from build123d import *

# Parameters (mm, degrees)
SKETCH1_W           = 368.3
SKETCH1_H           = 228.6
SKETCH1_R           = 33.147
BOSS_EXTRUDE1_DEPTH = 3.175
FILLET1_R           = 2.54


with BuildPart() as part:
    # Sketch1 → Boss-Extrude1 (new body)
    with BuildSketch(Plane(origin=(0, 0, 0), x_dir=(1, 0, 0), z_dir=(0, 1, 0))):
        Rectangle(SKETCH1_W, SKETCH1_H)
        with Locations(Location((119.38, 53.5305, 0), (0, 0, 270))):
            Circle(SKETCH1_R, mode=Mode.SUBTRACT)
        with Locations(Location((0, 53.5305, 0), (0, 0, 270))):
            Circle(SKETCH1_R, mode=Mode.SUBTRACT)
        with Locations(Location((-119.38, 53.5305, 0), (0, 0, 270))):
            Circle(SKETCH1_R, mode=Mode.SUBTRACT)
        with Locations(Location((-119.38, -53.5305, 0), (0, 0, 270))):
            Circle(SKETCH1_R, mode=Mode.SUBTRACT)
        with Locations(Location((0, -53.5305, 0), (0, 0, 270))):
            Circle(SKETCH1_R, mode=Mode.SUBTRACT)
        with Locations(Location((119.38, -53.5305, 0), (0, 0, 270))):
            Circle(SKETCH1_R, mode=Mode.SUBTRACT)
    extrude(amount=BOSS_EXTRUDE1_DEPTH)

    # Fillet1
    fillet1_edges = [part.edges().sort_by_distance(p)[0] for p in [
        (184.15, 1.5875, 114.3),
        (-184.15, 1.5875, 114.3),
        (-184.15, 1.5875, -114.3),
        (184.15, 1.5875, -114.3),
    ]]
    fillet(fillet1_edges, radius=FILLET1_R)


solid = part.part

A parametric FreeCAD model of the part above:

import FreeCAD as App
import Part
import Sketcher
Q = App.Units.Quantity


def edges_at(feature, points):
    """Names of the edges that pass closest to the given points."""
    edges = feature.Shape.Edges
    near = lambda p: min(range(len(edges)), key=lambda i: edges[i].distToShape(Part.Vertex(*p))[0])
    return sorted({f"Edge{near(p) + 1}" for p in points})

doc = App.newDocument("Part")
params = doc.addObject("Spreadsheet::Sheet", "Params")
for row, (alias, value) in enumerate([
    ("sketch1_diameter", "2.61 in"),
    ("sketch1_height", "9 in"),
    ("sketch1_width", "14.5 in"),
    ("pad1_length", "0.125 in"),
    ("fillet_radius", "0.1 in"),
], start=1):
    params.set(f"A{row}", alias)
    params.set(f"B{row}", "=" + value)
    params.setAlias(f"B{row}", alias)

body = doc.addObject("PartDesign::Body", "Body")

# Sketch on XZ plane
sketch1 = body.newObject("Sketcher::SketchObject", "Sketch")
sketch1.AttachmentSupport = (doc.getObject("XZ_Plane"), [""])
sketch1.MapMode = "FlatFace"
sketch1.addGeometry(Part.LineSegment(App.Vector(-184, -114, 0), App.Vector(-184, 114, 0)), False)
sketch1.addGeometry(Part.LineSegment(App.Vector(-184, 114, 0), App.Vector(184, 114, 0)), False)
sketch1.addGeometry(Part.LineSegment(App.Vector(184, 114, 0), App.Vector(184, -114, 0)), False)
sketch1.addGeometry(Part.LineSegment(App.Vector(184, -114, 0), App.Vector(-184, -114, 0)), False)
sketch1.addGeometry(Part.Circle(App.Vector(-119, 54, 0), App.Vector(0, 0, 1), 33), False)
sketch1.addGeometry(Part.Circle(App.Vector(0, 54, 0), App.Vector(0, 0, 1), 33), False)
sketch1.addGeometry(Part.Circle(App.Vector(119, 54, 0), App.Vector(0, 0, 1), 33), False)
sketch1.addGeometry(Part.Circle(App.Vector(-119, -54, 0), App.Vector(0, 0, 1), 33), False)
sketch1.addGeometry(Part.Circle(App.Vector(0, -54, 0), App.Vector(0, 0, 1), 33), False)
sketch1.addGeometry(Part.Circle(App.Vector(119, -54, 0), App.Vector(0, 0, 1), 33), False)
sketch1.addConstraint(Sketcher.Constraint("Coincident", 0, 2, 1, 1))
sketch1.addConstraint(Sketcher.Constraint("Coincident", 1, 2, 2, 1))
sketch1.addConstraint(Sketcher.Constraint("Coincident", 2, 2, 3, 1))
sketch1.addConstraint(Sketcher.Constraint("Coincident", 3, 2, 0, 1))
sketch1.addConstraint(Sketcher.Constraint("Vertical", 0))
sketch1.addConstraint(Sketcher.Constraint("Horizontal", 1))
sketch1.addConstraint(Sketcher.Constraint("Vertical", 2))
sketch1.addConstraint(Sketcher.Constraint("Horizontal", 3))
sketch1.addConstraint(Sketcher.Constraint("Equal", 4, 5))
sketch1.addConstraint(Sketcher.Constraint("Equal", 5, 6))
sketch1.addConstraint(Sketcher.Constraint("Equal", 6, 7))
sketch1.addConstraint(Sketcher.Constraint("Equal", 7, 8))
sketch1.addConstraint(Sketcher.Constraint("Equal", 8, 9))
sketch1.addConstraint(Sketcher.Constraint("Symmetric", 6, 3, 7, 3, -1, 1))
sketch1.addConstraint(Sketcher.Constraint("Symmetric", 5, 3, 8, 3, -1, 1))
sketch1.addConstraint(Sketcher.Constraint("Symmetric", 4, 3, 9, 3, -1, 1))
sketch1.addConstraint(Sketcher.Constraint("Symmetric", 0, 2, 2, 2, -1, 1))
sketch1.addConstraint(Sketcher.Constraint("Symmetric", 4, 3, 6, 3, -2))
sketch1.addConstraint(Sketcher.Constraint("PointOnObject", 5, 3, -2))
sketch1.addConstraint(Sketcher.Constraint("Horizontal", 4, 3, 5, 3))
sketch1.addConstraint(Sketcher.Constraint("Diameter", 4, Q("2.61 in")))
sketch1.addConstraint(Sketcher.Constraint("DistanceY", 0, 1, 0, 2, Q("9 in")))
sketch1.addConstraint(Sketcher.Constraint("DistanceX", 1, 1, 1, 2, Q("14.5 in")))
sketch1.addConstraint(Sketcher.Constraint("DistanceX", 4, 3, -1, 1, Q("4.7 in")))
sketch1.addConstraint(Sketcher.Constraint("DistanceY", 7, 3, 4, 3, Q("4.215 in")))
sketch1.setExpression("Constraints[20]", "Params.sketch1_diameter")
sketch1.setExpression("Constraints[21]", "Params.sketch1_height")
sketch1.setExpression("Constraints[22]", "Params.sketch1_width")
pad1 = body.newObject("PartDesign::Pad", "Pad")
pad1.Profile = sketch1
pad1.setExpression("Length", "Params.pad1_length")
pad1.Reversed = True
doc.recompute()

fillet = body.newObject("PartDesign::Fillet", "Fillet")
fillet.Base = (pad1, edges_at(pad1, [
    (184.15, 1.587, 114.3),
    (-184.15, 1.587, 114.3),
    (-184.15, 1.587, -114.3),
    (184.15, 1.587, -114.3),
]))
fillet.setExpression("Radius", "Params.fillet_radius")

doc.recompute()
